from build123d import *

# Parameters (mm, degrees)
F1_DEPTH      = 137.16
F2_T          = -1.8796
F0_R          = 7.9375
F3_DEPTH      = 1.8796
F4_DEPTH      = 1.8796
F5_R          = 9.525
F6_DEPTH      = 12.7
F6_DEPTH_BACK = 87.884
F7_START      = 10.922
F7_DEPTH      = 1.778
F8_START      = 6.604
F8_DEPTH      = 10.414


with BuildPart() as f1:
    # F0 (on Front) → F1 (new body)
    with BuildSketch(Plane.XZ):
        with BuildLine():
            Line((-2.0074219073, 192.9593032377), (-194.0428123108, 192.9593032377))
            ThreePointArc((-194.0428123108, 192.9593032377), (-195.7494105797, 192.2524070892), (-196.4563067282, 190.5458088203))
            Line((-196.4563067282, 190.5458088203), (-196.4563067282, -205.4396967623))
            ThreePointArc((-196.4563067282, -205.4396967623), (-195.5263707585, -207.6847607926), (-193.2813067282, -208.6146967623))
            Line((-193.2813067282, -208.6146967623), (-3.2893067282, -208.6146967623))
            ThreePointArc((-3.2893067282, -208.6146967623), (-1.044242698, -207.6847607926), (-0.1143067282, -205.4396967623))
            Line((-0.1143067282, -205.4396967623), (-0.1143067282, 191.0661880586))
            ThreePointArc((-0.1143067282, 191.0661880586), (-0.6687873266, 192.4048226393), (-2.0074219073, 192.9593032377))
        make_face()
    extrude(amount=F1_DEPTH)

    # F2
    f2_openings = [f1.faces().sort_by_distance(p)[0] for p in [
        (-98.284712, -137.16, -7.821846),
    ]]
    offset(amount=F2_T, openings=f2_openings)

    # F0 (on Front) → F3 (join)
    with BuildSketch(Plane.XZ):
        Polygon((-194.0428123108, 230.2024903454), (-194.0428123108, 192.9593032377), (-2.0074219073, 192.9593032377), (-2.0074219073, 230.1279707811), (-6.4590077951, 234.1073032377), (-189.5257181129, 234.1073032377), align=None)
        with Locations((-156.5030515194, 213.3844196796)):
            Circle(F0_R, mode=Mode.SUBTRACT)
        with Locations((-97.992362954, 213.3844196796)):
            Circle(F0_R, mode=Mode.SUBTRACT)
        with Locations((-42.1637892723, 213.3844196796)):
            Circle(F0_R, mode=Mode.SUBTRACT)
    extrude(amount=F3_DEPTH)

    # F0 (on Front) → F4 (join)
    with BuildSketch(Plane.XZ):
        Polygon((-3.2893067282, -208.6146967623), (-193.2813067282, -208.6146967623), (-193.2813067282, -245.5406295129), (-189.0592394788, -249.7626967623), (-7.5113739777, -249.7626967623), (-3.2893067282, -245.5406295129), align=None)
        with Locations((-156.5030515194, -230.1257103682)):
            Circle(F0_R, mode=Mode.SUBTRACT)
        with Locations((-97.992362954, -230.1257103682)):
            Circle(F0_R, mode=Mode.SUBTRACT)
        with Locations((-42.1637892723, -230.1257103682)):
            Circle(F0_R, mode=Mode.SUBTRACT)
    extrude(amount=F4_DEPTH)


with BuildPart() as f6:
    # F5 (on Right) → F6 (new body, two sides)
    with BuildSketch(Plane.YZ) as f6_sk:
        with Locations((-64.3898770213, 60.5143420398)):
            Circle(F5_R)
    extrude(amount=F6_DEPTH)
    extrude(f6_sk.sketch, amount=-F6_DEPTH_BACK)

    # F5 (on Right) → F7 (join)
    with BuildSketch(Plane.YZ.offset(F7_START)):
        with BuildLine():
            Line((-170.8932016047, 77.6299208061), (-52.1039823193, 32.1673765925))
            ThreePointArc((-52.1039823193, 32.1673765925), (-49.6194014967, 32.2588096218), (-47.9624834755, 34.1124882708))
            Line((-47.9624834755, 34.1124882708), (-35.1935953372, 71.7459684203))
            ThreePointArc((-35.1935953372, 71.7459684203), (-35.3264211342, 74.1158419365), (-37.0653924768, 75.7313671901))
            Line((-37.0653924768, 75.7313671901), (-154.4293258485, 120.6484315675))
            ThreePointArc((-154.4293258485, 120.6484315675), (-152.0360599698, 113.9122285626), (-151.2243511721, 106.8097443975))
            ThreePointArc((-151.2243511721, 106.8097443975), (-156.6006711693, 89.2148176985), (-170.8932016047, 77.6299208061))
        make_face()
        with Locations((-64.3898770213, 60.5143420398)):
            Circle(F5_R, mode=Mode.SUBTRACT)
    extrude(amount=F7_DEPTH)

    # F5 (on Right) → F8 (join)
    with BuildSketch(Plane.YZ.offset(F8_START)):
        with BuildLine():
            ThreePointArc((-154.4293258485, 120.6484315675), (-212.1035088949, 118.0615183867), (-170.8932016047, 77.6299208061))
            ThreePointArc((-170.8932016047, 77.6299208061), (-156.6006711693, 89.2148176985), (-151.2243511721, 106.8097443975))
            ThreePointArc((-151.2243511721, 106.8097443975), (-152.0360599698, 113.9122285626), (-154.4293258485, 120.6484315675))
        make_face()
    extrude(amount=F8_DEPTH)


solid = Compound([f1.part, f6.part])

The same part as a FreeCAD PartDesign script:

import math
import FreeCAD as App
import Part
import Sketcher
from FreeCAD import Vector
Q = App.Units.Quantity


def faces_at(feature, points):
    """Names of the faces that lie closest to the given points."""
    faces = feature.Shape.Faces
    near = lambda p: min(range(len(faces)), key=lambda i: faces[i].distToShape(Part.Vertex(*p))[0])
    return sorted({f"Face{near(p) + 1}" for p in points})


def add_polygon(sketch, points):
    """Adds a closed chain of lines whose ends are joined by coincident constraints."""
    first, n = sketch.GeometryCount, len(points)
    for a, b in zip(points, points[1:] + points[:1]):
        sketch.addGeometry(Part.LineSegment(App.Vector(*a, 0), App.Vector(*b, 0)), False)
    for i in range(n):
        sketch.addConstraint(Sketcher.Constraint("Coincident", first + i, 2, first + (i + 1) % n, 1))

doc = App.newDocument("Part")
body = doc.addObject("PartDesign::Body", "Body")

# Sketch on XZ plane
sketch1 = body.newObject("Sketcher::SketchObject", "Sketch")
sketch1.AttachmentSupport = (doc.getObject("XZ_Plane"), [""])
sketch1.MapMode = "FlatFace"
sketch1.addGeometry([
    Part.LineSegment(Vector(-2, 193, 0), Vector(-194, 193, 0)),  # 0
    Part.ArcOfCircle(Part.Circle(Vector(-194, 190.5, 0), Vector(0, 0, 1), 2.4), math.radians(90), math.radians(180)),  # 1
    Part.LineSegment(Vector(-196.5, 190.5, 0), Vector(-196.5, -205.4, 0)),  # 2
    Part.ArcOfCircle(Part.Circle(Vector(-193.3, -205.4, 0), Vector(0, 0, 1), 3.2), math.radians(180), math.radians(270)),  # 3
    Part.LineSegment(Vector(-193.3, -208.6, 0), Vector(-3.3, -208.6, 0)),  # 4
    Part.ArcOfCircle(Part.Circle(Vector(-3.3, -205.4, 0), Vector(0, 0, 1), 3.2), math.radians(-90), math.radians(0)),  # 5
    Part.LineSegment(Vector(-0.1, -205.4, 0), Vector(-0.1, 191.1, 0)),  # 6
    Part.ArcOfCircle(Part.Circle(Vector(-2, 191.1, 0), Vector(0, 0, 1), 1.9), math.radians(0), math.radians(90)),  # 7
], False)
sketch1.addConstraint([
    Sketcher.Constraint("Tangent", 0, 2, 1, 1),
    Sketcher.Constraint("Tangent", 1, 2, 2, 1),
    Sketcher.Constraint("Tangent", 2, 2, 3, 1),
    Sketcher.Constraint("Tangent", 3, 2, 4, 1),
    Sketcher.Constraint("Tangent", 4, 2, 5, 1),
    Sketcher.Constraint("Tangent", 5, 2, 6, 1),
    Sketcher.Constraint("Tangent", 6, 2, 7, 1),
    Sketcher.Constraint("Tangent", 7, 2, 0, 1),
    Sketcher.Constraint("Horizontal", 0),
    Sketcher.Constraint("Vertical", 2),
    Sketcher.Constraint("Horizontal", 4),
    Sketcher.Constraint("Vertical", 6),
    Sketcher.Constraint("Equal", 3, 5),
    Sketcher.Constraint("Radius", 3, Q("0.125 in")),
    Sketcher.Constraint("DistanceX", 4, 1, 4, 2, Q("7.48 in")),
    Sketcher.Constraint("DistanceY", 3, 3, 0, 2, Q("15.685 in")),
    Sketcher.Constraint("Radius", 1, 2.413494),
    Sketcher.Constraint("Radius", 7, 1.893115),
    Sketcher.Constraint("DistanceY", -1, 1, 1, 3, 190.545809),
    Sketcher.Constraint("DistanceX", 7, 3, -1, 1, 2.007422),
])
pad1 = body.newObject("PartDesign::Pad", "Pad")
pad1.Profile = sketch1
pad1.Length = Q("5.4 in")
doc.recompute()

thickness = body.newObject("PartDesign::Thickness", "Thickness")
thickness.Base = (pad1, faces_at(pad1, [(-98.285, -137.16, -7.828)]))
thickness.Value = Q("0.074 in")
thickness.Reversed = True
thickness.Join = "Arc"

# Sketch on XZ plane
sketch2 = body.newObject("Sketcher::SketchObject", "Sketch001")
sketch2.AttachmentSupport = (doc.getObject("XZ_Plane"), [""])
sketch2.MapMode = "FlatFace"
add_polygon(sketch2, [(-194, 230), (-194, 193), (-2, 193), (-2, 230), (-6, 234), (-190, 234)])  # lines 0-5
sketch2.addGeometry(Part.Circle(Vector(-157, 213, 0), Vector(0, 0, 1), 8), False)  # 6
sketch2.addGeometry(Part.Circle(Vector(-98, 213, 0), Vector(0, 0, 1), 8), False)  # 7
sketch2.addGeometry(Part.Circle(Vector(-42, 213, 0), Vector(0, 0, 1), 8), False)  # 8
sketch2.addConstraint([
    Sketcher.Constraint("Vertical", 0),
    Sketcher.Constraint("Horizontal", 1),
    Sketcher.Constraint("Vertical", 2),
    Sketcher.Constraint("Horizontal", 4),
    Sketcher.Constraint("Equal", 6, 7),
    Sketcher.Constraint("Equal", 7, 8),
    Sketcher.Constraint("Horizontal", 6, 3, 7, 3),
    Sketcher.Constraint("Horizontal", 7, 3, 8, 3),
    Sketcher.Constraint("Equal", 3, 5),
    Sketcher.Constraint("Diameter", 6, Q("0.625 in")),
    Sketcher.Constraint("DistanceY", 1, 2, 3, 2, Q("1.62 in")),
    Sketcher.Constraint("DistanceX", 8, 3, 3, 2, Q("1.4057001 in")),
    Sketcher.Constraint("DistanceX", 1, 1, 1, 2, 192.03539),
    Sketcher.Constraint("DistanceX", 4, 2, 4, 1, 183.06671),
    Sketcher.Constraint("DistanceY", 0, 2, 0, 1, 37.243187),
    Sketcher.Constraint("DistanceY", 2, 1, 2, 2, 37.168668),
    Sketcher.Constraint("DistanceX", 6, 3, -1, 1, 156.503052),
    Sketcher.Constraint("DistanceY", -1, 1, 6, 3, 213.38442),
    Sketcher.Constraint("DistanceX", 8, 3, -1, 1, 42.163789),
    Sketcher.Constraint("DistanceY", -1, 1, 2, 2, 230.127971),
    Sketcher.Constraint("DistanceX", 6, 3, 7, 3, 58.510689),
])
pad2 = body.newObject("PartDesign::Pad", "Pad001")
pad2.Profile = sketch2
pad2.Length = Q("0.074 in")

# Sketch on XZ plane
sketch3 = body.newObject("Sketcher::SketchObject", "Sketch002")
sketch3.AttachmentSupport = (doc.getObject("XZ_Plane"), [""])
sketch3.MapMode = "FlatFace"
add_polygon(sketch3, [(-3, -209), (-193, -209), (-193, -246), (-189, -250), (-8, -250), (-3, -246)])  # lines 0-5
sketch3.addGeometry(Part.Circle(Vector(-157, -230, 0), Vector(0, 0, 1), 8), False)  # 6
sketch3.addGeometry(Part.Circle(Vector(-98, -230, 0), Vector(0, 0, 1), 8), False)  # 7
sketch3.addGeometry(Part.Circle(Vector(-42, -230, 0), Vector(0, 0, 1), 8), False)  # 8
sketch3.addConstraint([
    Sketcher.Constraint("Horizontal", 0),
    Sketcher.Constraint("Vertical", 1),
    Sketcher.Constraint("Horizontal", 3),
    Sketcher.Constraint("Vertical", 5),
    Sketcher.Constraint("Equal", 6, 7),
    Sketcher.Constraint("Equal", 7, 8),
    Sketcher.Constraint("Perpendicular", 2, 4),
    Sketcher.Constraint("Horizontal", 6, 3, 7, 3),
    Sketcher.Constraint("Horizontal", 7, 3, 8, 3),
    Sketcher.Constraint("Horizontal", 1, 2, 4, 2),
    Sketcher.Constraint("Equal", 2, 4),
    Sketcher.Constraint("Diameter", 6, Q("0.625 in")),
    Sketcher.Constraint("DistanceX", 0, 2, 0, 1, Q("7.48 in")),
    Sketcher.Constraint("DistanceY", 2, 2, 0, 2, Q("1.62 in")),
    Sketcher.Constraint("DistanceX", 3, 1, 3, 2, 181.547866),
    Sketcher.Constraint("DistanceX", 6, 3, -1, 1, 156.503052),
    Sketcher.Constraint("DistanceY", 6, 3, -1, 1, 230.12571),
    Sketcher.Constraint("DistanceX", 8, 3, -1, 1, 42.163789),
    Sketcher.Constraint("DistanceY", 1, 2, -1, 1, 245.54063),
    Sketcher.Constraint("DistanceX", 2, 2, -1, 1, 189.059239),
    Sketcher.Constraint("DistanceX", 6, 3, 7, 3, 58.510689),
])
pad3 = body.newObject("PartDesign::Pad", "Pad002")
pad3.Profile = sketch3
pad3.Length = Q("0.074 in")
body2 = doc.addObject("PartDesign::Body", "Body001")

# Sketch on YZ plane
sketch4 = body2.newObject("Sketcher::SketchObject", "Sketch003")
sketch4.AttachmentSupport = (doc.getObject("YZ_Plane001"), [""])
sketch4.MapMode = "FlatFace"
sketch4.addGeometry(Part.Circle(Vector(-64, 61, 0), Vector(0, 0, 1), 10), False)
sketch4.addConstraint([
    Sketcher.Constraint("Diameter", 0, Q("0.75 in")),
    Sketcher.Constraint("DistanceX", 0, 3, -1, 1, 64.389877),
    Sketcher.Constraint("DistanceY", -1, 1, 0, 3, 60.514342),
])
pad4 = body2.newObject("PartDesign::Pad", "Pad003")
pad4.Profile = sketch4
pad4.Type = "TwoLengths"
pad4.Length = Q("0.5 in")
pad4.Length2 = Q("3.46 in")

# Sketch on YZ plane
sketch5 = body2.newObject("Sketcher::SketchObject", "Sketch004")
sketch5.AttachmentSupport = (doc.getObject("YZ_Plane001"), [""])
sketch5.MapMode = "FlatFace"
sketch5.AttachmentOffset = App.Placement(Vector(0, 0, 0.43 * 25.4), App.Rotation())
sketch5.addGeometry([
    Part.LineSegment(Vector(-170.9, 77.6, 0), Vector(-52.1, 32.2, 0)),  # 0
    Part.ArcOfCircle(Part.Circle(Vector(-51, 35.1, 0), Vector(0, 0, 1), 3.2), math.radians(-111), math.radians(-19)),  # 1
    Part.LineSegment(Vector(-48, 34.1, 0), Vector(-35.2, 71.7, 0)),  # 2
    Part.ArcOfCircle(Part.Circle(Vector(-38.2, 72.8, 0), Vector(0, 0, 1), 3.2), math.radians(-19), math.radians(69)),  # 3
    Part.LineSegment(Vector(-37.1, 75.7, 0), Vector(-154.4, 120.6, 0)),  # 4
    Part.ArcOfCircle(Part.Circle(Vector(-182.7, 106.8, 0), Vector(0, 0, 1), 31.5), math.radians(-68), math.radians(26)),  # 5
    Part.Circle(Vector(-64.4, 60.5, 0), Vector(0, 0, 1), 9.5),  # 6
], False)
sketch5.addConstraint([
    Sketcher.Constraint("Tangent", 0, 2, 1, 1),
    Sketcher.Constraint("Tangent", 1, 2, 2, 1),
    Sketcher.Constraint("Tangent", 2, 2, 3, 1),
    Sketcher.Constraint("Tangent", 3, 2, 4, 1),
    Sketcher.Constraint("Coincident", 4, 2, 5, 2),
    Sketcher.Constraint("Coincident", 5, 1, 0, 1),
    Sketcher.Constraint("Equal", 1, 3),
    Sketcher.Constraint("Parallel", 0, 4),
    Sketcher.Constraint("Diameter", 6, Q("0.75 in")),
    Sketcher.Constraint("Radius", 1, Q("0.125 in")),
    Sketcher.Constraint("Radius", 5, 31.479363),
    Sketcher.Constraint("Distance", 2, 39.740701),
    Sketcher.Constraint("DistanceX", 5, 1, -1, 1, 170.893202),
    Sketcher.Constraint("DistanceX", 0, 2, 1, 2, 4.141499),
    Sketcher.Constraint("DistanceY", 2, 2, 3, 2, 3.985399),
    Sketcher.Constraint("Distance", 4, 125.66557),
    Sketcher.Constraint("DistanceX", 1, 3, -1, 1, 50.969131),
    Sketcher.Constraint("DistanceY", -1, 1, 1, 3, 35.132632),
    Sketcher.Constraint("DistanceY", 1, 3, 6, 3, 25.38171),
    Sketcher.Constraint("DistanceX", 6, 3, 2, 2, 29.196282),
])
pad5 = body2.newObject("PartDesign::Pad", "Pad004")
pad5.Profile = sketch5
pad5.Length = Q("0.07 in")

# Sketch on YZ plane
sketch6 = body2.newObject("Sketcher::SketchObject", "Sketch005")
sketch6.AttachmentSupport = (doc.getObject("YZ_Plane001"), [""])
sketch6.MapMode = "FlatFace"
sketch6.AttachmentOffset = App.Placement(Vector(0, 0, 0.26 * 25.4), App.Rotation())
sketch6.addGeometry([
    Part.ArcOfCircle(Part.Circle(Vector(-183, 107, 0), Vector(0, 0, 1), 31), math.radians(26), math.radians(292)),
    Part.ArcOfCircle(Part.Circle(Vector(-183, 107, 0), Vector(0, 0, 1), 31), math.radians(-68), math.radians(26)),
], False)
sketch6.addConstraint([
    Sketcher.Constraint("Tangent", 0, 1, 1, 2),
    Sketcher.Constraint("Coincident", 1, 1, 0, 2),
    Sketcher.Constraint("Radius", 0, 31.479363),
    Sketcher.Constraint("DistanceX", 1, 1, -1, 1, 170.893202),
    Sketcher.Constraint("DistanceY", -1, 1, 0, 1, 120.648432),
    Sketcher.Constraint("DistanceY", -1, 1, 1, 1, 77.629921),
    Sketcher.Constraint("DistanceX", 0, 3, 0, 1, 28.274389),
])
pad6 = body2.newObject("PartDesign::Pad", "Pad005")
pad6.Profile = sketch6
pad6.Length = Q("0.41 in")

doc.recompute()
